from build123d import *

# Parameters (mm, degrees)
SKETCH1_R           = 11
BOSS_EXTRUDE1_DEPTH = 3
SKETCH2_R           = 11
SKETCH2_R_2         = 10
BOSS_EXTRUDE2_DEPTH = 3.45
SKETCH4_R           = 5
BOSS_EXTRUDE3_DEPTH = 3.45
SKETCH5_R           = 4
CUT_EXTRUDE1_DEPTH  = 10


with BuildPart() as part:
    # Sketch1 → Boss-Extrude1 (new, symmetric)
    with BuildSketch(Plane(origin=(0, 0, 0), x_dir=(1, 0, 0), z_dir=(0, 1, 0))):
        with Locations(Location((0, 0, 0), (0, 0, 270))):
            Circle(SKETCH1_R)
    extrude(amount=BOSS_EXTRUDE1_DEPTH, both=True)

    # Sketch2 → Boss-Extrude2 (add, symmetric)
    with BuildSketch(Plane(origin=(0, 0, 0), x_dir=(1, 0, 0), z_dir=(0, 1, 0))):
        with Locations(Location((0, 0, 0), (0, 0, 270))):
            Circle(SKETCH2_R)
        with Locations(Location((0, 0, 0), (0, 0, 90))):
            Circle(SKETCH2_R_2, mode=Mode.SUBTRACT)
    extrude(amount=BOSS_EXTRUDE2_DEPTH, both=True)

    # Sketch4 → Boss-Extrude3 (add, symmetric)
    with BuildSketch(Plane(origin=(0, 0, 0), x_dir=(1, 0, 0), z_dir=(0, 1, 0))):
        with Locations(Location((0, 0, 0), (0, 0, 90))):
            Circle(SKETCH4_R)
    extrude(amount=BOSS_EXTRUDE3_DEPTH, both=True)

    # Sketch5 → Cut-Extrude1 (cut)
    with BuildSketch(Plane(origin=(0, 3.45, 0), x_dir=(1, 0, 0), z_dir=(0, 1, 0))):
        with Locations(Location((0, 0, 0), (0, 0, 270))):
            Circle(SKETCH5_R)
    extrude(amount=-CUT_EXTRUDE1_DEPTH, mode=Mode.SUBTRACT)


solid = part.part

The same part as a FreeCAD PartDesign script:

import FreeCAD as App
import Part
import Sketcher

V = App.Vector
Q = App.Units.Quantity

doc = App.newDocument("Part")
body = doc.addObject("PartDesign::Body", "Body")

# Sketch on XZ plane
sketch1 = doc.addObject("Sketcher::SketchObject", "Sketch")
body.addObject(sketch1)
sketch1.AttachmentSupport = (doc.XZ_Plane, [""])
sketch1.MapMode = "FlatFace"
sketch1.addGeometry(Part.Circle(V(0, 0, 0), V(0, 0, 1), 11), False)
sketch1.addConstraint([
    Sketcher.Constraint("Coincident", 0, 3, -1, 1),
    Sketcher.Constraint("Diameter", 0, Q("22 mm")),
])
pad1 = doc.addObject("PartDesign::Pad", "Pad")
body.addObject(pad1)
pad1.Profile = sketch1
pad1.Length = 6
pad1.Midplane = True

# Sketch on XZ plane
sketch2 = doc.addObject("Sketcher::SketchObject", "Sketch001")
body.addObject(sketch2)
sketch2.AttachmentSupport = (doc.XZ_Plane, [""])
sketch2.MapMode = "FlatFace"
sketch2.addGeometry([
    Part.Circle(V(0, 0, 0), V(0, 0, 1), 11),
    Part.Circle(V(0, 0, 0), V(0, 0, 1), 10),
], False)
sketch2.addConstraint([
    Sketcher.Constraint("Coincident", 0, 3, -1, 1),
    Sketcher.Constraint("Coincident", 1, 3, -1, 1),
    Sketcher.Constraint("Diameter", 0, Q("22 mm")),
    Sketcher.Constraint("Diameter", 1, Q("20 mm")),
])
pad2 = doc.addObject("PartDesign::Pad", "Pad001")
body.addObject(pad2)
pad2.Profile = sketch2
pad2.Length = 6.9
pad2.Midplane = True

# Sketch on XZ plane
sketch3 = doc.addObject("Sketcher::SketchObject", "Sketch002")
body.addObject(sketch3)
sketch3.AttachmentSupport = (doc.XZ_Plane, [""])
sketch3.MapMode = "FlatFace"
sketch3.addGeometry(Part.Circle(V(0, 0, 0), V(0, 0, 1), 5), False)
sketch3.addConstraint([
    Sketcher.Constraint("Coincident", 0, 3, -1, 1),
    Sketcher.Constraint("Diameter", 0, Q("10 mm")),
])
pad3 = doc.addObject("PartDesign::Pad", "Pad002")
body.addObject(pad3)
pad3.Profile = sketch3
pad3.Length = 6.9
pad3.Midplane = True

# Sketch on XZ plane
sketch4 = doc.addObject("Sketcher::SketchObject", "Sketch003")
body.addObject(sketch4)
sketch4.AttachmentSupport = (doc.XZ_Plane, [""])
sketch4.MapMode = "FlatFace"
sketch4.AttachmentOffset = App.Placement(V(0, 0, -3.45), App.Rotation())
sketch4.addGeometry(Part.Circle(V(0, 0, 0), V(0, 0, 1), 4), False)
sketch4.addConstraint([
    Sketcher.Constraint("Coincident", 0, 3, -1, 1),
    Sketcher.Constraint("Diameter", 0, Q("8 mm")),
])
pocket1 = doc.addObject("PartDesign::Pocket", "Pocket")
body.addObject(pocket1)
pocket1.Profile = sketch4
pocket1.Length = 10
pocket1.Reversed = True

doc.recompute()
